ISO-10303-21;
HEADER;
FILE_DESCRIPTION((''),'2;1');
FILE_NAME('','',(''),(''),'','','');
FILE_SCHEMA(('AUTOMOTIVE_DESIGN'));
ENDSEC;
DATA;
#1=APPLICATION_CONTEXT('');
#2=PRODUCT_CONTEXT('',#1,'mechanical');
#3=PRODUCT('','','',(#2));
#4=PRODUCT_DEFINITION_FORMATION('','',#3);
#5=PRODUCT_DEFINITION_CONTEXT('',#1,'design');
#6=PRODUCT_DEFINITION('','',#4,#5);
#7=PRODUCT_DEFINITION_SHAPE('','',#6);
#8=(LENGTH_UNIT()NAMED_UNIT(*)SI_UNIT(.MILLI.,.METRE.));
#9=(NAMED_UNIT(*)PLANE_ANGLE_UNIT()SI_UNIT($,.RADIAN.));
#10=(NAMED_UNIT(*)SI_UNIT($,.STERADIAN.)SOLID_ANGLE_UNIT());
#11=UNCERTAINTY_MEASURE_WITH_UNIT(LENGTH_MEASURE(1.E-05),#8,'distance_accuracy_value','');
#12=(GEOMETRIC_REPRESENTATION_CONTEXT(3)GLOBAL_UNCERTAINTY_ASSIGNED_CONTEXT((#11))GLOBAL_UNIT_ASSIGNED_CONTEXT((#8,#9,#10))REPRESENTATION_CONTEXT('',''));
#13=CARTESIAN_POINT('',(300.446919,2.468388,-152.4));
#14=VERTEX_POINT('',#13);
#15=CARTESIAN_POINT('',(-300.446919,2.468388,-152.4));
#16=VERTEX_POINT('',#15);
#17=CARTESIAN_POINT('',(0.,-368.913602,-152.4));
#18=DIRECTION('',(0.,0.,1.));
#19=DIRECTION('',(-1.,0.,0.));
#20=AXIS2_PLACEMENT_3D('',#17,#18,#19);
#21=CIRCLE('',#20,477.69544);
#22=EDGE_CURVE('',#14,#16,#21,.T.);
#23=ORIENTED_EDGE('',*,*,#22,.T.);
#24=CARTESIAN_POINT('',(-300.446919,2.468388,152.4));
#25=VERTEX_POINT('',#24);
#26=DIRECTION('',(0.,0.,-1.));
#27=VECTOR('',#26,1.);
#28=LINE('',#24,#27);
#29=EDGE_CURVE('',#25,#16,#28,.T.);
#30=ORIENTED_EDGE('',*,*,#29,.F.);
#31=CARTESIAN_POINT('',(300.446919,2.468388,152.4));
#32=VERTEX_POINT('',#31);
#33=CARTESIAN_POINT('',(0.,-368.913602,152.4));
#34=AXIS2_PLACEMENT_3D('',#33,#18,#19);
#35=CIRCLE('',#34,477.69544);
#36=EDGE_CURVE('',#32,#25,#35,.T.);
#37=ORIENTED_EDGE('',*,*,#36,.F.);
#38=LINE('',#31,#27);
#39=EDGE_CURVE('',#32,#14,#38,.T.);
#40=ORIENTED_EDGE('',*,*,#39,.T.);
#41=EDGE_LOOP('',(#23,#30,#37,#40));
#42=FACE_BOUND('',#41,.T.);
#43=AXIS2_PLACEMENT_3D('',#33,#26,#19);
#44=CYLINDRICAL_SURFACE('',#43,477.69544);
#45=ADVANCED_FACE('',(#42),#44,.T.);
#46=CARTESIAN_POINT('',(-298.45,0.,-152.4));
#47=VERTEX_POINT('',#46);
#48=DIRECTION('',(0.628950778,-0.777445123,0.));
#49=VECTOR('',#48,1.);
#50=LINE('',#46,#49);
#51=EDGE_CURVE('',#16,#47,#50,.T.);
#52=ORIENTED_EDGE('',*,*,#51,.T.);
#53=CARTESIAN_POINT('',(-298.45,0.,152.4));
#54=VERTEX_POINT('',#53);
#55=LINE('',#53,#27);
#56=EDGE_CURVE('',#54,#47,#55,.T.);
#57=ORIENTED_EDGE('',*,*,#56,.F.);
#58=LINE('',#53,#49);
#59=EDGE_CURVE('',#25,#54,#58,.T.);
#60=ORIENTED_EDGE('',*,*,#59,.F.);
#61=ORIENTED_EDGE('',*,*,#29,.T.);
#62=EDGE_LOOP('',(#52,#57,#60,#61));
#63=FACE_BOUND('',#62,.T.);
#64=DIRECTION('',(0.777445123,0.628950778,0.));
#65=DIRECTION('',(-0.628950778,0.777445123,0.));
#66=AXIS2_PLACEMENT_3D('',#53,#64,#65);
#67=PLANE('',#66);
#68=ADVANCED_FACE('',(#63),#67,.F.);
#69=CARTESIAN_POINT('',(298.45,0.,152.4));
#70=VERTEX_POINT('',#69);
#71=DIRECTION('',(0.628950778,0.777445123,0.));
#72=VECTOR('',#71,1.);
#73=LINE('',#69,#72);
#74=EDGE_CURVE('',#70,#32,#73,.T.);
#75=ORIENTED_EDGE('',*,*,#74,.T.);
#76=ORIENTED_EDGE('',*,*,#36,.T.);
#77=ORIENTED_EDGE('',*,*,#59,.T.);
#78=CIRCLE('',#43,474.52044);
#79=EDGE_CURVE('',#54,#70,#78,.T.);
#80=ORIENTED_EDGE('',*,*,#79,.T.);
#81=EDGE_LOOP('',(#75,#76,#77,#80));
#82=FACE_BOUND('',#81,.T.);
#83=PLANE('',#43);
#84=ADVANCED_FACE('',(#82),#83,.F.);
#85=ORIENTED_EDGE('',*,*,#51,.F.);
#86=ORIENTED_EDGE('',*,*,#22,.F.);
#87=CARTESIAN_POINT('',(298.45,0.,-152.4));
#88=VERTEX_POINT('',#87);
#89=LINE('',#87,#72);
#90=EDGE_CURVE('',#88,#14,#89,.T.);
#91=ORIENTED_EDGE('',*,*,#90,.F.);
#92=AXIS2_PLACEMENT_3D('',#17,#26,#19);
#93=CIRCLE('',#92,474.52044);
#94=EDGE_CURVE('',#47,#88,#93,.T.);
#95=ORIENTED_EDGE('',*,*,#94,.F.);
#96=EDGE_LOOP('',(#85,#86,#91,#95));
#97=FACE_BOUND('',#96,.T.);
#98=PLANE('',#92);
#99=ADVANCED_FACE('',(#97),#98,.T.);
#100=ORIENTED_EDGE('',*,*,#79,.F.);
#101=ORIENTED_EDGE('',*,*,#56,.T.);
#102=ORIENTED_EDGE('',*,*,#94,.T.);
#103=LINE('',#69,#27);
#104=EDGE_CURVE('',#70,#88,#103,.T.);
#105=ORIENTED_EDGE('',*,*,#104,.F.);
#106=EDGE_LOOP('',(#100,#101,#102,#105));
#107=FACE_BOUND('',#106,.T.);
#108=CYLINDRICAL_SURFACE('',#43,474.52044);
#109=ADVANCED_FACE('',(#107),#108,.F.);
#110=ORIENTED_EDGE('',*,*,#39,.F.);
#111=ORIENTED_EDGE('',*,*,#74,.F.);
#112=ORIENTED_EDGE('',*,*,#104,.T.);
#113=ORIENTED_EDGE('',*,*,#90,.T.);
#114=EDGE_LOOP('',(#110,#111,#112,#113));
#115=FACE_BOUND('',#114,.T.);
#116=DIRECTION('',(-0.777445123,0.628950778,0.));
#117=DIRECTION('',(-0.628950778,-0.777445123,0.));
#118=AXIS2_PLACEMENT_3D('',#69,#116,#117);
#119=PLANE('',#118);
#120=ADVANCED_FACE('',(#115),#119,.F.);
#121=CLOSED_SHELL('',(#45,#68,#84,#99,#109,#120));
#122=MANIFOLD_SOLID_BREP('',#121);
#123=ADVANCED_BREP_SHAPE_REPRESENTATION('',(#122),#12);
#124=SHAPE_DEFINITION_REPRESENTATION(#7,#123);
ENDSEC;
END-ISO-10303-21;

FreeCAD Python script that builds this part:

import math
import FreeCAD as App
import Part
import Sketcher
from FreeCAD import Vector
Q = App.Units.Quantity

doc = App.newDocument("Part")
body = doc.addObject("PartDesign::Body", "Body")

sketch1 = doc.addObject("Sketcher::SketchObject", "Sketch")
body.addObject(sketch1)
sketch1.AttachmentSupport = (doc.XY_Plane, [""])
sketch1.MapMode = "FlatFace"
sketch1.addGeometry([
    Part.LineSegment(Vector(-300.446919, 2.468388, 0), Vector(-298.45, 0, 0)),
    Part.ArcOfCircle(Part.Circle(Vector(0, -368.913602, 0), Vector(0, 0, 1), 474.52044), math.radians(51.027245), math.radians(128.972755)),
    Part.LineSegment(Vector(298.45, 0, 0), Vector(300.446919, 2.468388, 0)),
    Part.ArcOfCircle(Part.Circle(Vector(0, -368.913602, 0), Vector(0, 0, 1), 477.69544), math.radians(51.027245), math.radians(128.972755)),
], False)
sketch1.addConstraint([
    Sketcher.Constraint("Coincident", 0, 2, 1, 2),
    Sketcher.Constraint("Coincident", 1, 1, 2, 1),
    Sketcher.Constraint("Coincident", 2, 2, 3, 1),
    Sketcher.Constraint("Coincident", 3, 2, 0, 1),
    Sketcher.Constraint("Coincident", 3, 3, 1, 3),
    Sketcher.Constraint("Symmetric", 0, 2, 1, 1, -1, 1),
    Sketcher.Constraint("Symmetric", 2, 2, 3, 2, -2),
    Sketcher.Constraint("DistanceX", 0, 2, 1, 1, Q("23.5 in")),
    Sketcher.Constraint("Distance", 0, Q("0.125 in")),
    Sketcher.Constraint("Radius", 1, Q("474.52044 mm")),
    Sketcher.Constraint("DistanceX", -1, 1, 2, 2, Q("300.446919 mm")),
])
pad1 = doc.addObject("PartDesign::Pad", "Pad")
body.addObject(pad1)
pad1.Profile = sketch1
pad1.Length = Q("12 in")
pad1.Midplane = True

doc.recompute()
